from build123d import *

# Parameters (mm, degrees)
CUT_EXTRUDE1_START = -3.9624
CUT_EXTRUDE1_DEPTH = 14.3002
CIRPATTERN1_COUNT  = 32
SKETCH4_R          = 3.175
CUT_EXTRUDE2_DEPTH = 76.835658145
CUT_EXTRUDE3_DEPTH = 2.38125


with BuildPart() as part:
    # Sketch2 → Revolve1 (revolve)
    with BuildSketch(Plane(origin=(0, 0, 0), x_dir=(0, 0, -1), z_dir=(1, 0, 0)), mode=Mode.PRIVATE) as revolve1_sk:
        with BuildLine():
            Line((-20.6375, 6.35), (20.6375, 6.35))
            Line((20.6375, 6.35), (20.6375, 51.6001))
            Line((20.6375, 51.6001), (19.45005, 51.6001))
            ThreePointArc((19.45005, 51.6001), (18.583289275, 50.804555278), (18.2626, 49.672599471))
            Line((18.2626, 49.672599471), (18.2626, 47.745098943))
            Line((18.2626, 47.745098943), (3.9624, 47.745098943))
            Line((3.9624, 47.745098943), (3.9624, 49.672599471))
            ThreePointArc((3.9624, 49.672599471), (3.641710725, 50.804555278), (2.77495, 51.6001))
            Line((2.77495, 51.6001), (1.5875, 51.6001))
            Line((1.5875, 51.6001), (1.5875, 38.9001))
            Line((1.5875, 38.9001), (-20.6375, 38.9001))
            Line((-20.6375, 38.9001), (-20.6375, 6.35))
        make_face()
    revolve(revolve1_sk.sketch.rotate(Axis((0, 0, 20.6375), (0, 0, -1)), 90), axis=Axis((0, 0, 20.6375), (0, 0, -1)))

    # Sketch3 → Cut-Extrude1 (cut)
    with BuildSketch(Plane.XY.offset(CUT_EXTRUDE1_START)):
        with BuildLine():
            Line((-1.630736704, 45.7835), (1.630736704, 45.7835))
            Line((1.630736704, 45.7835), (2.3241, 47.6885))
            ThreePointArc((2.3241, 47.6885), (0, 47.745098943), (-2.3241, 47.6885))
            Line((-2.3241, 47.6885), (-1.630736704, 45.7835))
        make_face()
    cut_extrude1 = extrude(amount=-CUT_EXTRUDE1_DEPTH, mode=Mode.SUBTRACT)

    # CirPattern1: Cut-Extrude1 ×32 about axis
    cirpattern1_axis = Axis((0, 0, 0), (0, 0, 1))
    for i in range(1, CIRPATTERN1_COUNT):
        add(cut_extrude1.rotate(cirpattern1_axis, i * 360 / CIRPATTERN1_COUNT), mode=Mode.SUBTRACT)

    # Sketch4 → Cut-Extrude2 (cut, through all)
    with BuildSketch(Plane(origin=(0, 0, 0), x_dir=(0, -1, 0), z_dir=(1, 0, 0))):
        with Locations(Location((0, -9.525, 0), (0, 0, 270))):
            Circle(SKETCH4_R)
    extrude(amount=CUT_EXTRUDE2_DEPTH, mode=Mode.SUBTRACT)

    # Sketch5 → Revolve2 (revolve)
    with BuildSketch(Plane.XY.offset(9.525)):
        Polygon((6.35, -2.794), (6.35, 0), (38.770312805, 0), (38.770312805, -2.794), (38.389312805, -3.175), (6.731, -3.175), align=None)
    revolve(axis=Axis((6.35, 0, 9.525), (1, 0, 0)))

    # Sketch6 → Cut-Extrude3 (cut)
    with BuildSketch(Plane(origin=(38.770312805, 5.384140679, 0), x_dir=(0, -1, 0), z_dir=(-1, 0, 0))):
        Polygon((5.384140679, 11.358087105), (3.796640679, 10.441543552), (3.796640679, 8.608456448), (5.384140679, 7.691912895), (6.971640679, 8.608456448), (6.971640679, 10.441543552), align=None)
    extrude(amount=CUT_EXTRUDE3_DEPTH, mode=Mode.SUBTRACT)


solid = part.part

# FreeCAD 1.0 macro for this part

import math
import FreeCAD as App
import Part
import Sketcher
Q = App.Units.Quantity


def add_polygon(sketch, points):
    """Adds a closed chain of lines whose ends are joined by coincident constraints."""
    first, n = sketch.GeometryCount, len(points)
    for a, b in zip(points, points[1:] + points[:1]):
        sketch.addGeometry(Part.LineSegment(App.Vector(*a, 0), App.Vector(*b, 0)), False)
    for i in range(n):
        sketch.addConstraint(Sketcher.Constraint("Coincident", first + i, 2, first + (i + 1) % n, 1))

doc = App.newDocument("Part")
body = doc.addObject("PartDesign::Body", "Body")

# Sketch on YZ plane
sketch1 = doc.addObject("Sketcher::SketchObject", "Sketch")
body.addObject(sketch1)
sketch1.AttachmentSupport = (doc.YZ_Plane, [""])
sketch1.MapMode = "FlatFace"
sketch1.addGeometry(Part.LineSegment(App.Vector(6.3, 20.6, 0), App.Vector(6.3, -20.6, 0)), False)
sketch1.addGeometry(Part.LineSegment(App.Vector(6.3, -20.6, 0), App.Vector(51.6, -20.6, 0)), False)
sketch1.addGeometry(Part.LineSegment(App.Vector(51.6, -20.6, 0), App.Vector(51.6, -19.5, 0)), False)
sketch1.addGeometry(Part.ArcOfCircle(Part.Circle(App.Vector(49.7, -20.4, 0), App.Vector(0, 0, 1), 2.2), math.radians(27), math.radians(90)), False)
sketch1.addGeometry(Part.LineSegment(App.Vector(49.7, -18.3, 0), App.Vector(47.7, -18.3, 0)), False)
sketch1.addGeometry(Part.LineSegment(App.Vector(47.7, -18.3, 0), App.Vector(47.7, -4, 0)), False)
sketch1.addGeometry(Part.LineSegment(App.Vector(47.7, -4, 0), App.Vector(49.7, -4, 0)), False)
sketch1.addGeometry(Part.ArcOfCircle(Part.Circle(App.Vector(49.7, -1.8, 0), App.Vector(0, 0, 1), 2.2), math.radians(-90), math.radians(-27)), False)
sketch1.addGeometry(Part.LineSegment(App.Vector(51.6, -2.8, 0), App.Vector(51.6, -1.6, 0)), False)
sketch1.addGeometry(Part.LineSegment(App.Vector(51.6, -1.6, 0), App.Vector(38.9, -1.6, 0)), False)
sketch1.addGeometry(Part.LineSegment(App.Vector(38.9, -1.6, 0), App.Vector(38.9, 20.6, 0)), False)
sketch1.addGeometry(Part.LineSegment(App.Vector(38.9, 20.6, 0), App.Vector(6.3, 20.6, 0)), False)
sketch1.addConstraint(Sketcher.Constraint("Coincident", 0, 2, 1, 1))
sketch1.addConstraint(Sketcher.Constraint("Coincident", 1, 2, 2, 1))
sketch1.addConstraint(Sketcher.Constraint("Coincident", 2, 2, 3, 1))
sketch1.addConstraint(Sketcher.Constraint("Tangent", 3, 2, 4, 1))
sketch1.addConstraint(Sketcher.Constraint("Coincident", 4, 2, 5, 1))
sketch1.addConstraint(Sketcher.Constraint("Coincident", 5, 2, 6, 1))
sketch1.addConstraint(Sketcher.Constraint("Tangent", 6, 2, 7, 1))
sketch1.addConstraint(Sketcher.Constraint("Coincident", 7, 2, 8, 1))
sketch1.addConstraint(Sketcher.Constraint("Coincident", 8, 2, 9, 1))
sketch1.addConstraint(Sketcher.Constraint("Coincident", 9, 2, 10, 1))
sketch1.addConstraint(Sketcher.Constraint("Coincident", 10, 2, 11, 1))
sketch1.addConstraint(Sketcher.Constraint("Coincident", 11, 2, 0, 1))
sketch1.addConstraint(Sketcher.Constraint("Vertical", 0))
sketch1.addConstraint(Sketcher.Constraint("Horizontal", 1))
sketch1.addConstraint(Sketcher.Constraint("Vertical", 2))
sketch1.addConstraint(Sketcher.Constraint("Horizontal", 4))
sketch1.addConstraint(Sketcher.Constraint("Vertical", 5))
sketch1.addConstraint(Sketcher.Constraint("Horizontal", 6))
sketch1.addConstraint(Sketcher.Constraint("Vertical", 8))
sketch1.addConstraint(Sketcher.Constraint("Horizontal", 9))
sketch1.addConstraint(Sketcher.Constraint("Vertical", 10))
sketch1.addConstraint(Sketcher.Constraint("Horizontal", 11))
sketch1.addConstraint(Sketcher.Constraint("Equal", 3, 7))
sketch1.addConstraint(Sketcher.Constraint("Vertical", 3, 3, 7, 3))
sketch1.addConstraint(Sketcher.Constraint("Vertical", 2, 2, 7, 2))
sketch1.addConstraint(Sketcher.Constraint("Equal", 2, 8))
sketch1.addConstraint(Sketcher.Constraint("DistanceX", 9, 2, 9, 1, Q("0.5 in")))
sketch1.addConstraint(Sketcher.Constraint("DistanceY", 0, 2, 0, 1, Q("1.625 in")))
sketch1.addConstraint(Sketcher.Constraint("DistanceY", 5, 1, 5, 2, Q("0.563 in")))
sketch1.addConstraint(Sketcher.Constraint("DistanceY", 10, 1, 10, 2, Q("0.875 in")))
sketch1.addConstraint(Sketcher.Constraint("DistanceX", -1, 1, 0, 2, Q("0.25 in")))
sketch1.addConstraint(Sketcher.Constraint("DistanceX", 1, 1, 1, 2, Q("1.7815 in")))
sketch1.addConstraint(Sketcher.Constraint("DistanceY", 0, 2, -1, 1, Q("0.8125 in")))
sketch1.addConstraint(Sketcher.Constraint("Radius", 3, 2.15811))
sketch1.addConstraint(Sketcher.Constraint("DistanceX", 4, 2, 4, 1, 1.927501))
sketch1.addConstraint(Sketcher.Constraint("DistanceY", 2, 1, 2, 2, 1.18745))
revolution = doc.addObject("PartDesign::Revolution", "Revolution")
body.addObject(revolution)
revolution.Profile = sketch1
revolution.ReferenceAxis = (sketch1, ["V_Axis"])
revolution.Angle = 360

# Sketch on XY plane
sketch2 = doc.addObject("Sketcher::SketchObject", "Sketch001")
body.addObject(sketch2)
sketch2.AttachmentSupport = (doc.XY_Plane, [""])
sketch2.MapMode = "FlatFace"
sketch2.AttachmentOffset = App.Placement(App.Vector(0, 0, -0.156 * 25.4), App.Rotation())
sketch2.addGeometry(Part.LineSegment(App.Vector(-1.6, 45.8, 0), App.Vector(1.6, 45.8, 0)), False)
sketch2.addGeometry(Part.LineSegment(App.Vector(1.6, 45.8, 0), App.Vector(2.3, 47.7, 0)), False)
sketch2.addGeometry(Part.ArcOfCircle(Part.Circle(App.Vector(0, 0, 0), App.Vector(0, 0, 1), 47.7), math.radians(87.21), math.radians(92.79)), False)
sketch2.addGeometry(Part.LineSegment(App.Vector(-2.3, 47.7, 0), App.Vector(-1.6, 45.8, 0)), False)
sketch2.addConstraint(Sketcher.Constraint("Coincident", 0, 2, 1, 1))
sketch2.addConstraint(Sketcher.Constraint("Coincident", 1, 2, 2, 1))
sketch2.addConstraint(Sketcher.Constraint("Coincident", 2, 2, 3, 1))
sketch2.addConstraint(Sketcher.Constraint("Coincident", 3, 2, 0, 1))
sketch2.addConstraint(Sketcher.Constraint("Horizontal", 0))
sketch2.addConstraint(Sketcher.Constraint("Coincident", 2, 3, -1, 1))
sketch2.addConstraint(Sketcher.Constraint("Horizontal", 1, 2, 2, 2))
sketch2.addConstraint(Sketcher.Constraint("Equal", 1, 3))
sketch2.addConstraint(Sketcher.Constraint("Angle", 1, Q("70 deg")))
sketch2.addConstraint(Sketcher.Constraint("Radius", 2, 47.745099))
sketch2.addConstraint(Sketcher.Constraint("DistanceY", 0, 2, 1, 2, Q("0.075 in")))
sketch2.addConstraint(Sketcher.Constraint("DistanceX", 2, 2, 1, 2, Q("0.183 in")))
pocket1 = doc.addObject("PartDesign::Pocket", "Pocket")
body.addObject(pocket1)
pocket1.Profile = sketch2
pocket1.Length = Q("0.563 in")
doc.recompute()

polarpattern = doc.addObject("PartDesign::PolarPattern", "PolarPattern")
body.addObject(polarpattern)
polarpattern.Originals = [pocket1]
polarpattern.Axis = (doc.Z_Axis, [""])
polarpattern.Angle = 360
polarpattern.Occurrences = 32
body.Tip = polarpattern

# Sketch on YZ plane
sketch3 = doc.addObject("Sketcher::SketchObject", "Sketch002")
body.addObject(sketch3)
sketch3.AttachmentSupport = (doc.YZ_Plane, [""])
sketch3.MapMode = "FlatFace"
sketch3.addGeometry(Part.Circle(App.Vector(0, 9.5, 0), App.Vector(0, 0, 1), 3.2), False)
sketch3.addConstraint(Sketcher.Constraint("PointOnObject", 0, 3, -2))
sketch3.addConstraint(Sketcher.Constraint("Diameter", 0, Q("0.25 in")))
sketch3.addConstraint(Sketcher.Constraint("DistanceY", -1, 1, 0, 3, Q("0.375 in")))
pocket2 = doc.addObject("PartDesign::Pocket", "Pocket001")
body.addObject(pocket2)
pocket2.Profile = sketch3
pocket2.Type = "ThroughAll"
pocket2.Reversed = True

# Sketch on XY plane
sketch4 = doc.addObject("Sketcher::SketchObject", "Sketch003")
body.addObject(sketch4)
sketch4.AttachmentSupport = (doc.XY_Plane, [""])
sketch4.MapMode = "FlatFace"
sketch4.AttachmentOffset = App.Placement(App.Vector(0, 0, 0.375 * 25.4), App.Rotation())
add_polygon(sketch4, [(6.3, 0), (6.3, -2.8), (6.7, -3.2), (38.4, -3.2), (38.8, -2.8), (38.8, 0)])  # lines 0-5
sketch4.addConstraint(Sketcher.Constraint("Vertical", 0))
sketch4.addConstraint(Sketcher.Constraint("Horizontal", 2))
sketch4.addConstraint(Sketcher.Constraint("Vertical", 4))
sketch4.addConstraint(Sketcher.Constraint("Horizontal", 5))
sketch4.addConstraint(Sketcher.Constraint("PointOnObject", 4, 2, -1))
sketch4.addConstraint(Sketcher.Constraint("Perpendicular", 1, 3))
sketch4.addConstraint(Sketcher.Constraint("Horizontal", 0, 2, 3, 2))
sketch4.addConstraint(Sketcher.Constraint("Equal", 1, 3))
sketch4.addConstraint(Sketcher.Constraint("DistanceY", 0, 2, 0, 1, Q("0.11 in")))
sketch4.addConstraint(Sketcher.Constraint("DistanceX", -1, 1, 0, 2, Q("0.25 in")))
sketch4.addConstraint(Sketcher.Constraint("DistanceX", -1, 1, 1, 2, Q("0.265 in")))
sketch4.addConstraint(Sketcher.Constraint("DistanceX", 2, 1, 2, 2, 31.658313))
revolution2 = doc.addObject("PartDesign::Revolution", "Revolution001")
body.addObject(revolution2)
revolution2.Profile = sketch4
revolution2.ReferenceAxis = (sketch4, ["H_Axis"])
revolution2.Angle = 360

# Sketch on YZ plane
sketch5 = doc.addObject("Sketcher::SketchObject", "Sketch004")
body.addObject(sketch5)
sketch5.AttachmentSupport = (doc.YZ_Plane, [""])
sketch5.MapMode = "FlatFace"
sketch5.AttachmentOffset = App.Placement(App.Vector(0, 0, 38.770313), App.Rotation())
add_polygon(sketch5, [(0, 11.4), (1.6, 10.4), (1.6, 8.6), (0, 7.7), (-1.6, 8.6), (-1.6, 10.4)])  # lines 0-5
sketch5.addConstraint(Sketcher.Constraint("Vertical", 1))
sketch5.addConstraint(Sketcher.Constraint("Vertical", 4))
sketch5.addConstraint(Sketcher.Constraint("Symmetric", 1, 2, 3, 2, -2))
sketch5.addConstraint(Sketcher.Constraint("PointOnObject", 2, 2, -2))
sketch5.addConstraint(Sketcher.Constraint("PointOnObject", 5, 2, -2))
sketch5.addConstraint(Sketcher.Constraint("Parallel", 0, 3))
sketch5.addConstraint(Sketcher.Constraint("Parallel", 2, 5))
sketch5.addConstraint(Sketcher.Constraint("Angle", 0, Q("-30 deg")))
sketch5.addConstraint(Sketcher.Constraint("DistanceX", -1, 1, 0, 2, Q("0.0625 in")))
sketch5.addConstraint(Sketcher.Constraint("DistanceY", 1, 2, 1, 1, 1.833087))
sketch5.addConstraint(Sketcher.Constraint("DistanceY", -1, 1, 0, 2, 10.441544))
pocket3 = doc.addObject("PartDesign::Pocket", "Pocket002")
body.addObject(pocket3)
pocket3.Profile = sketch5
pocket3.Length = Q("0.09375 in")

doc.recompute()
